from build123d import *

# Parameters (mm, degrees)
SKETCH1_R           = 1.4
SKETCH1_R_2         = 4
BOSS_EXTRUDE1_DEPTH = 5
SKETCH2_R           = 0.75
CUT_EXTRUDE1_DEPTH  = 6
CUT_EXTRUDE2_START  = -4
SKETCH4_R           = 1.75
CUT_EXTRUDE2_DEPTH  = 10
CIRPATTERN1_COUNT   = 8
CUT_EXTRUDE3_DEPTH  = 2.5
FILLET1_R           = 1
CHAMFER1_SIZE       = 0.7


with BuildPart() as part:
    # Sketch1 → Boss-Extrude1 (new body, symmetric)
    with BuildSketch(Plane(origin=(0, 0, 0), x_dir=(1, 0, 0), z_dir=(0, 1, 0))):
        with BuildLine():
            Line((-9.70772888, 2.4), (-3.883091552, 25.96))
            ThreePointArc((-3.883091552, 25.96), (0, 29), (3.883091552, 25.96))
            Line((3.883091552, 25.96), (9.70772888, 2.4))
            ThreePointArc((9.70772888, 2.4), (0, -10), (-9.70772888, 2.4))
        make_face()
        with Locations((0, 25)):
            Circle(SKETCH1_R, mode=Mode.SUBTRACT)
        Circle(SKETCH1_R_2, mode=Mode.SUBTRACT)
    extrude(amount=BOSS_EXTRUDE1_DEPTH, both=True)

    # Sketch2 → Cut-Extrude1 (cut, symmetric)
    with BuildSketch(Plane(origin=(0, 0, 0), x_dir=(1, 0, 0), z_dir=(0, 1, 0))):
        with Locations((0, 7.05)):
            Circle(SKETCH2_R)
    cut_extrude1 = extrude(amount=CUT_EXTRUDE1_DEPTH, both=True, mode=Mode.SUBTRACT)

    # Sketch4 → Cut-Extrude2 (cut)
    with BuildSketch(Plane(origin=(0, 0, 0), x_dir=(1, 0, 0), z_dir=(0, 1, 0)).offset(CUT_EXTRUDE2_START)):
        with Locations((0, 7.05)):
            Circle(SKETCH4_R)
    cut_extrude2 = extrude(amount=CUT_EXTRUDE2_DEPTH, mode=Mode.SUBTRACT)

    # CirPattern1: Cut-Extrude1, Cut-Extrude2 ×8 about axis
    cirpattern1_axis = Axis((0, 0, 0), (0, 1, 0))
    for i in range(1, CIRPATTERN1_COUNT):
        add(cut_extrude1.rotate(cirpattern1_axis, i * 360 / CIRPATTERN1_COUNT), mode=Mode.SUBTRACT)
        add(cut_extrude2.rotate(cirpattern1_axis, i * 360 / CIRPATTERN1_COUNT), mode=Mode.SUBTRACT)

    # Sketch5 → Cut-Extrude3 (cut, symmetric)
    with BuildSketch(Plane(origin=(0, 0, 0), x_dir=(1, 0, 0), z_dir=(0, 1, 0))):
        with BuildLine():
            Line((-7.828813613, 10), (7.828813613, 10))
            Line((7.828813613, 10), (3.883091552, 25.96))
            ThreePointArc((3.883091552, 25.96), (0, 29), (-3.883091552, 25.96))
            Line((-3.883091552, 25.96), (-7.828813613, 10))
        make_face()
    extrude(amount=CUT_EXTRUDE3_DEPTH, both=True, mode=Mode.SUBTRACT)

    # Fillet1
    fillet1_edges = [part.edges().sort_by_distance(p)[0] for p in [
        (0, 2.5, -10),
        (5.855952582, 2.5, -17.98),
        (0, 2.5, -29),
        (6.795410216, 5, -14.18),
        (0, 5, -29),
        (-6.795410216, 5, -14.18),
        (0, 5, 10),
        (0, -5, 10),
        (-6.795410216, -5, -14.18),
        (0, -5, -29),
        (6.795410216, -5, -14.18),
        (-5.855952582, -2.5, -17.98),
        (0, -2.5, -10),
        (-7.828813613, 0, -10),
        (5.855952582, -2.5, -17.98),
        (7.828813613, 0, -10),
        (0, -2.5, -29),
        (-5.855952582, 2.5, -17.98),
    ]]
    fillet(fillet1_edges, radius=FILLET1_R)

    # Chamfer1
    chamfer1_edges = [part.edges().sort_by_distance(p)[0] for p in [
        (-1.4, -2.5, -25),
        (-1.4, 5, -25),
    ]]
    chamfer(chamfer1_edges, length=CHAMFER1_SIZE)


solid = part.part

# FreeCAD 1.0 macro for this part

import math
import FreeCAD as App
import Part
import Sketcher


def edges_at(feature, points):
    """Names of the edges that pass closest to the given points."""
    edges = feature.Shape.Edges
    near = lambda p: min(range(len(edges)), key=lambda i: edges[i].distToShape(Part.Vertex(*p))[0])
    return sorted({f"Edge{near(p) + 1}" for p in points})

doc = App.newDocument("Part")
body = doc.addObject("PartDesign::Body", "Body")

sketch1 = body.newObject("Sketcher::SketchObject", "Sketch")
sketch1.AttachmentSupport = (doc.getObject("XZ_Plane"), [""])
sketch1.MapMode = "FlatFace"
sketch1.addGeometry(Part.LineSegment(App.Vector(-3.883092, -25.96, 0), App.Vector(-9.707729, -2.4, 0)), False)
sketch1.addGeometry(Part.ArcOfCircle(Part.Circle(App.Vector(0, 0, 0), App.Vector(0, 0, 1), 10), math.radians(-13.88654), math.radians(193.88654)), False)
sketch1.addGeometry(Part.LineSegment(App.Vector(9.707729, -2.4, 0), App.Vector(3.883092, -25.96, 0)), False)
sketch1.addGeometry(Part.ArcOfCircle(Part.Circle(App.Vector(0, -25, 0), App.Vector(0, 0, 1), 4), math.radians(-166.11346), math.radians(-13.88654)), False)
sketch1.addGeometry(Part.Circle(App.Vector(0, 0, 0), App.Vector(0, 0, 1), 4), False)
sketch1.addGeometry(Part.Circle(App.Vector(0, -25, 0), App.Vector(0, 0, 1), 1.4), False)
sketch1.addConstraint(Sketcher.Constraint("Tangent", 0, 2, 1, 2))
sketch1.addConstraint(Sketcher.Constraint("Tangent", 1, 1, 2, 1))
sketch1.addConstraint(Sketcher.Constraint("Tangent", 2, 2, 3, 2))
sketch1.addConstraint(Sketcher.Constraint("Tangent", 3, 1, 0, 1))
sketch1.addConstraint(Sketcher.Constraint("Coincident", 1, 3, -1, 1))
sketch1.addConstraint(Sketcher.Constraint("Coincident", 4, 3, -1, 1))
sketch1.addConstraint(Sketcher.Constraint("Coincident", 5, 3, 3, 3))
sketch1.addConstraint(Sketcher.Constraint("Equal", 3, 4))
sketch1.addConstraint(Sketcher.Constraint("PointOnObject", 3, 3, -2))
sketch1.addConstraint(Sketcher.Constraint("Diameter", 4, 8.0))
sketch1.addConstraint(Sketcher.Constraint("Radius", 1, 10.0))
sketch1.addConstraint(Sketcher.Constraint("Diameter", 5, 2.8))
sketch1.addConstraint(Sketcher.Constraint("DistanceY", 3, 3, -1, 1, 25.0))
pad1 = body.newObject("PartDesign::Pad", "Pad")
pad1.Profile = sketch1
pad1.Length = 10
pad1.Midplane = True

sketch2 = body.newObject("Sketcher::SketchObject", "Sketch001")
sketch2.AttachmentSupport = (doc.getObject("XZ_Plane"), [""])
sketch2.MapMode = "FlatFace"
sketch2.addGeometry(Part.Circle(App.Vector(0, -7.05, 0), App.Vector(0, 0, 1), 0.75), False)
sketch2.addConstraint(Sketcher.Constraint("PointOnObject", 0, 3, -2))
sketch2.addConstraint(Sketcher.Constraint("Diameter", 0, 1.5))
sketch2.addConstraint(Sketcher.Constraint("DistanceY", 0, 3, -1, 1, 7.05))
pocket1 = body.newObject("PartDesign::Pocket", "Pocket")
pocket1.Profile = sketch2
pocket1.Length = 12
pocket1.Midplane = True

sketch3 = body.newObject("Sketcher::SketchObject", "Sketch002")
sketch3.AttachmentSupport = (doc.getObject("XZ_Plane"), [""])
sketch3.MapMode = "FlatFace"
sketch3.AttachmentOffset = App.Placement(App.Vector(0, 0, 4), App.Rotation())
sketch3.addGeometry(Part.Circle(App.Vector(0, -7.05, 0), App.Vector(0, 0, 1), 1.75), False)
sketch3.addConstraint(Sketcher.Constraint("PointOnObject", 0, 3, -2))
sketch3.addConstraint(Sketcher.Constraint("Diameter", 0, 3.5))
sketch3.addConstraint(Sketcher.Constraint("DistanceY", 0, 3, -1, 1, 7.05))
pocket2 = body.newObject("PartDesign::Pocket", "Pocket001")
pocket2.Profile = sketch3
pocket2.Length = 10
doc.recompute()

polarpattern = body.newObject("PartDesign::PolarPattern", "PolarPattern")
polarpattern.Originals = [pocket1, pocket2]
polarpattern.Axis = (doc.getObject("Y_Axis"), [""])
polarpattern.Angle = 360
polarpattern.Occurrences = 8
body.Tip = polarpattern

sketch4 = body.newObject("Sketcher::SketchObject", "Sketch003")
sketch4.AttachmentSupport = (doc.getObject("XZ_Plane"), [""])
sketch4.MapMode = "FlatFace"
sketch4.addGeometry(Part.LineSegment(App.Vector(-7.828814, -10, 0), App.Vector(7.828814, -10, 0)), False)
sketch4.addGeometry(Part.LineSegment(App.Vector(7.828814, -10, 0), App.Vector(3.883092, -25.96, 0)), False)
sketch4.addGeometry(Part.ArcOfCircle(Part.Circle(App.Vector(0, -25, 0), App.Vector(0, 0, 1), 4), math.radians(-166.11346), math.radians(-13.88654)), False)
sketch4.addGeometry(Part.LineSegment(App.Vector(-3.883092, -25.96, 0), App.Vector(-7.828814, -10, 0)), False)
sketch4.addConstraint(Sketcher.Constraint("Coincident", 0, 2, 1, 1))
sketch4.addConstraint(Sketcher.Constraint("Tangent", 1, 2, 2, 2))
sketch4.addConstraint(Sketcher.Constraint("Tangent", 2, 1, 3, 1))
sketch4.addConstraint(Sketcher.Constraint("Coincident", 3, 2, 0, 1))
sketch4.addConstraint(Sketcher.Constraint("Horizontal", 0))
sketch4.addConstraint(Sketcher.Constraint("Symmetric", 1, 2, 2, 1, -2))
sketch4.addConstraint(Sketcher.Constraint("Radius", 2, 4.0))
sketch4.addConstraint(Sketcher.Constraint("DistanceY", 2, 3, -1, 1, 25.0))
sketch4.addConstraint(Sketcher.Constraint("DistanceY", 0, 2, -1, 1, 10.0))
sketch4.addConstraint(Sketcher.Constraint("DistanceY", 1, 2, -1, 1, 25.96))
pocket3 = body.newObject("PartDesign::Pocket", "Pocket002")
pocket3.Profile = sketch4
pocket3.Length = 5
pocket3.Midplane = True
doc.recompute()

fillet = body.newObject("PartDesign::Fillet", "Fillet")
fillet.Base = (pocket3, edges_at(pocket3, [
    (0, 2.5, -10),
    (5.856, 2.5, -17.98),
    (0, 2.5, -29),
    (6.795, 5, -14.18),
    (0, 5, -29),
    (-6.795, 5, -14.18),
    (0, 5, 10),
    (0, -5, 10),
    (-6.795, -5, -14.18),
    (0, -5, -29),
    (6.795, -5, -14.18),
    (-5.856, -2.5, -17.98),
    (0, -2.5, -10),
    (-7.829, 0, -10),
    (5.856, -2.5, -17.98),
    (7.829, 0, -10),
    (0, -2.5, -29),
    (-5.856, 2.5, -17.98),
]))
fillet.Radius = 1
doc.recompute()

chamfer = body.newObject("PartDesign::Chamfer", "Chamfer")
chamfer.Base = (fillet, edges_at(fillet, [(-1.4, -2.5, -25), (-1.4, 5, -25)]))
chamfer.Size = 0.7

doc.recompute()
